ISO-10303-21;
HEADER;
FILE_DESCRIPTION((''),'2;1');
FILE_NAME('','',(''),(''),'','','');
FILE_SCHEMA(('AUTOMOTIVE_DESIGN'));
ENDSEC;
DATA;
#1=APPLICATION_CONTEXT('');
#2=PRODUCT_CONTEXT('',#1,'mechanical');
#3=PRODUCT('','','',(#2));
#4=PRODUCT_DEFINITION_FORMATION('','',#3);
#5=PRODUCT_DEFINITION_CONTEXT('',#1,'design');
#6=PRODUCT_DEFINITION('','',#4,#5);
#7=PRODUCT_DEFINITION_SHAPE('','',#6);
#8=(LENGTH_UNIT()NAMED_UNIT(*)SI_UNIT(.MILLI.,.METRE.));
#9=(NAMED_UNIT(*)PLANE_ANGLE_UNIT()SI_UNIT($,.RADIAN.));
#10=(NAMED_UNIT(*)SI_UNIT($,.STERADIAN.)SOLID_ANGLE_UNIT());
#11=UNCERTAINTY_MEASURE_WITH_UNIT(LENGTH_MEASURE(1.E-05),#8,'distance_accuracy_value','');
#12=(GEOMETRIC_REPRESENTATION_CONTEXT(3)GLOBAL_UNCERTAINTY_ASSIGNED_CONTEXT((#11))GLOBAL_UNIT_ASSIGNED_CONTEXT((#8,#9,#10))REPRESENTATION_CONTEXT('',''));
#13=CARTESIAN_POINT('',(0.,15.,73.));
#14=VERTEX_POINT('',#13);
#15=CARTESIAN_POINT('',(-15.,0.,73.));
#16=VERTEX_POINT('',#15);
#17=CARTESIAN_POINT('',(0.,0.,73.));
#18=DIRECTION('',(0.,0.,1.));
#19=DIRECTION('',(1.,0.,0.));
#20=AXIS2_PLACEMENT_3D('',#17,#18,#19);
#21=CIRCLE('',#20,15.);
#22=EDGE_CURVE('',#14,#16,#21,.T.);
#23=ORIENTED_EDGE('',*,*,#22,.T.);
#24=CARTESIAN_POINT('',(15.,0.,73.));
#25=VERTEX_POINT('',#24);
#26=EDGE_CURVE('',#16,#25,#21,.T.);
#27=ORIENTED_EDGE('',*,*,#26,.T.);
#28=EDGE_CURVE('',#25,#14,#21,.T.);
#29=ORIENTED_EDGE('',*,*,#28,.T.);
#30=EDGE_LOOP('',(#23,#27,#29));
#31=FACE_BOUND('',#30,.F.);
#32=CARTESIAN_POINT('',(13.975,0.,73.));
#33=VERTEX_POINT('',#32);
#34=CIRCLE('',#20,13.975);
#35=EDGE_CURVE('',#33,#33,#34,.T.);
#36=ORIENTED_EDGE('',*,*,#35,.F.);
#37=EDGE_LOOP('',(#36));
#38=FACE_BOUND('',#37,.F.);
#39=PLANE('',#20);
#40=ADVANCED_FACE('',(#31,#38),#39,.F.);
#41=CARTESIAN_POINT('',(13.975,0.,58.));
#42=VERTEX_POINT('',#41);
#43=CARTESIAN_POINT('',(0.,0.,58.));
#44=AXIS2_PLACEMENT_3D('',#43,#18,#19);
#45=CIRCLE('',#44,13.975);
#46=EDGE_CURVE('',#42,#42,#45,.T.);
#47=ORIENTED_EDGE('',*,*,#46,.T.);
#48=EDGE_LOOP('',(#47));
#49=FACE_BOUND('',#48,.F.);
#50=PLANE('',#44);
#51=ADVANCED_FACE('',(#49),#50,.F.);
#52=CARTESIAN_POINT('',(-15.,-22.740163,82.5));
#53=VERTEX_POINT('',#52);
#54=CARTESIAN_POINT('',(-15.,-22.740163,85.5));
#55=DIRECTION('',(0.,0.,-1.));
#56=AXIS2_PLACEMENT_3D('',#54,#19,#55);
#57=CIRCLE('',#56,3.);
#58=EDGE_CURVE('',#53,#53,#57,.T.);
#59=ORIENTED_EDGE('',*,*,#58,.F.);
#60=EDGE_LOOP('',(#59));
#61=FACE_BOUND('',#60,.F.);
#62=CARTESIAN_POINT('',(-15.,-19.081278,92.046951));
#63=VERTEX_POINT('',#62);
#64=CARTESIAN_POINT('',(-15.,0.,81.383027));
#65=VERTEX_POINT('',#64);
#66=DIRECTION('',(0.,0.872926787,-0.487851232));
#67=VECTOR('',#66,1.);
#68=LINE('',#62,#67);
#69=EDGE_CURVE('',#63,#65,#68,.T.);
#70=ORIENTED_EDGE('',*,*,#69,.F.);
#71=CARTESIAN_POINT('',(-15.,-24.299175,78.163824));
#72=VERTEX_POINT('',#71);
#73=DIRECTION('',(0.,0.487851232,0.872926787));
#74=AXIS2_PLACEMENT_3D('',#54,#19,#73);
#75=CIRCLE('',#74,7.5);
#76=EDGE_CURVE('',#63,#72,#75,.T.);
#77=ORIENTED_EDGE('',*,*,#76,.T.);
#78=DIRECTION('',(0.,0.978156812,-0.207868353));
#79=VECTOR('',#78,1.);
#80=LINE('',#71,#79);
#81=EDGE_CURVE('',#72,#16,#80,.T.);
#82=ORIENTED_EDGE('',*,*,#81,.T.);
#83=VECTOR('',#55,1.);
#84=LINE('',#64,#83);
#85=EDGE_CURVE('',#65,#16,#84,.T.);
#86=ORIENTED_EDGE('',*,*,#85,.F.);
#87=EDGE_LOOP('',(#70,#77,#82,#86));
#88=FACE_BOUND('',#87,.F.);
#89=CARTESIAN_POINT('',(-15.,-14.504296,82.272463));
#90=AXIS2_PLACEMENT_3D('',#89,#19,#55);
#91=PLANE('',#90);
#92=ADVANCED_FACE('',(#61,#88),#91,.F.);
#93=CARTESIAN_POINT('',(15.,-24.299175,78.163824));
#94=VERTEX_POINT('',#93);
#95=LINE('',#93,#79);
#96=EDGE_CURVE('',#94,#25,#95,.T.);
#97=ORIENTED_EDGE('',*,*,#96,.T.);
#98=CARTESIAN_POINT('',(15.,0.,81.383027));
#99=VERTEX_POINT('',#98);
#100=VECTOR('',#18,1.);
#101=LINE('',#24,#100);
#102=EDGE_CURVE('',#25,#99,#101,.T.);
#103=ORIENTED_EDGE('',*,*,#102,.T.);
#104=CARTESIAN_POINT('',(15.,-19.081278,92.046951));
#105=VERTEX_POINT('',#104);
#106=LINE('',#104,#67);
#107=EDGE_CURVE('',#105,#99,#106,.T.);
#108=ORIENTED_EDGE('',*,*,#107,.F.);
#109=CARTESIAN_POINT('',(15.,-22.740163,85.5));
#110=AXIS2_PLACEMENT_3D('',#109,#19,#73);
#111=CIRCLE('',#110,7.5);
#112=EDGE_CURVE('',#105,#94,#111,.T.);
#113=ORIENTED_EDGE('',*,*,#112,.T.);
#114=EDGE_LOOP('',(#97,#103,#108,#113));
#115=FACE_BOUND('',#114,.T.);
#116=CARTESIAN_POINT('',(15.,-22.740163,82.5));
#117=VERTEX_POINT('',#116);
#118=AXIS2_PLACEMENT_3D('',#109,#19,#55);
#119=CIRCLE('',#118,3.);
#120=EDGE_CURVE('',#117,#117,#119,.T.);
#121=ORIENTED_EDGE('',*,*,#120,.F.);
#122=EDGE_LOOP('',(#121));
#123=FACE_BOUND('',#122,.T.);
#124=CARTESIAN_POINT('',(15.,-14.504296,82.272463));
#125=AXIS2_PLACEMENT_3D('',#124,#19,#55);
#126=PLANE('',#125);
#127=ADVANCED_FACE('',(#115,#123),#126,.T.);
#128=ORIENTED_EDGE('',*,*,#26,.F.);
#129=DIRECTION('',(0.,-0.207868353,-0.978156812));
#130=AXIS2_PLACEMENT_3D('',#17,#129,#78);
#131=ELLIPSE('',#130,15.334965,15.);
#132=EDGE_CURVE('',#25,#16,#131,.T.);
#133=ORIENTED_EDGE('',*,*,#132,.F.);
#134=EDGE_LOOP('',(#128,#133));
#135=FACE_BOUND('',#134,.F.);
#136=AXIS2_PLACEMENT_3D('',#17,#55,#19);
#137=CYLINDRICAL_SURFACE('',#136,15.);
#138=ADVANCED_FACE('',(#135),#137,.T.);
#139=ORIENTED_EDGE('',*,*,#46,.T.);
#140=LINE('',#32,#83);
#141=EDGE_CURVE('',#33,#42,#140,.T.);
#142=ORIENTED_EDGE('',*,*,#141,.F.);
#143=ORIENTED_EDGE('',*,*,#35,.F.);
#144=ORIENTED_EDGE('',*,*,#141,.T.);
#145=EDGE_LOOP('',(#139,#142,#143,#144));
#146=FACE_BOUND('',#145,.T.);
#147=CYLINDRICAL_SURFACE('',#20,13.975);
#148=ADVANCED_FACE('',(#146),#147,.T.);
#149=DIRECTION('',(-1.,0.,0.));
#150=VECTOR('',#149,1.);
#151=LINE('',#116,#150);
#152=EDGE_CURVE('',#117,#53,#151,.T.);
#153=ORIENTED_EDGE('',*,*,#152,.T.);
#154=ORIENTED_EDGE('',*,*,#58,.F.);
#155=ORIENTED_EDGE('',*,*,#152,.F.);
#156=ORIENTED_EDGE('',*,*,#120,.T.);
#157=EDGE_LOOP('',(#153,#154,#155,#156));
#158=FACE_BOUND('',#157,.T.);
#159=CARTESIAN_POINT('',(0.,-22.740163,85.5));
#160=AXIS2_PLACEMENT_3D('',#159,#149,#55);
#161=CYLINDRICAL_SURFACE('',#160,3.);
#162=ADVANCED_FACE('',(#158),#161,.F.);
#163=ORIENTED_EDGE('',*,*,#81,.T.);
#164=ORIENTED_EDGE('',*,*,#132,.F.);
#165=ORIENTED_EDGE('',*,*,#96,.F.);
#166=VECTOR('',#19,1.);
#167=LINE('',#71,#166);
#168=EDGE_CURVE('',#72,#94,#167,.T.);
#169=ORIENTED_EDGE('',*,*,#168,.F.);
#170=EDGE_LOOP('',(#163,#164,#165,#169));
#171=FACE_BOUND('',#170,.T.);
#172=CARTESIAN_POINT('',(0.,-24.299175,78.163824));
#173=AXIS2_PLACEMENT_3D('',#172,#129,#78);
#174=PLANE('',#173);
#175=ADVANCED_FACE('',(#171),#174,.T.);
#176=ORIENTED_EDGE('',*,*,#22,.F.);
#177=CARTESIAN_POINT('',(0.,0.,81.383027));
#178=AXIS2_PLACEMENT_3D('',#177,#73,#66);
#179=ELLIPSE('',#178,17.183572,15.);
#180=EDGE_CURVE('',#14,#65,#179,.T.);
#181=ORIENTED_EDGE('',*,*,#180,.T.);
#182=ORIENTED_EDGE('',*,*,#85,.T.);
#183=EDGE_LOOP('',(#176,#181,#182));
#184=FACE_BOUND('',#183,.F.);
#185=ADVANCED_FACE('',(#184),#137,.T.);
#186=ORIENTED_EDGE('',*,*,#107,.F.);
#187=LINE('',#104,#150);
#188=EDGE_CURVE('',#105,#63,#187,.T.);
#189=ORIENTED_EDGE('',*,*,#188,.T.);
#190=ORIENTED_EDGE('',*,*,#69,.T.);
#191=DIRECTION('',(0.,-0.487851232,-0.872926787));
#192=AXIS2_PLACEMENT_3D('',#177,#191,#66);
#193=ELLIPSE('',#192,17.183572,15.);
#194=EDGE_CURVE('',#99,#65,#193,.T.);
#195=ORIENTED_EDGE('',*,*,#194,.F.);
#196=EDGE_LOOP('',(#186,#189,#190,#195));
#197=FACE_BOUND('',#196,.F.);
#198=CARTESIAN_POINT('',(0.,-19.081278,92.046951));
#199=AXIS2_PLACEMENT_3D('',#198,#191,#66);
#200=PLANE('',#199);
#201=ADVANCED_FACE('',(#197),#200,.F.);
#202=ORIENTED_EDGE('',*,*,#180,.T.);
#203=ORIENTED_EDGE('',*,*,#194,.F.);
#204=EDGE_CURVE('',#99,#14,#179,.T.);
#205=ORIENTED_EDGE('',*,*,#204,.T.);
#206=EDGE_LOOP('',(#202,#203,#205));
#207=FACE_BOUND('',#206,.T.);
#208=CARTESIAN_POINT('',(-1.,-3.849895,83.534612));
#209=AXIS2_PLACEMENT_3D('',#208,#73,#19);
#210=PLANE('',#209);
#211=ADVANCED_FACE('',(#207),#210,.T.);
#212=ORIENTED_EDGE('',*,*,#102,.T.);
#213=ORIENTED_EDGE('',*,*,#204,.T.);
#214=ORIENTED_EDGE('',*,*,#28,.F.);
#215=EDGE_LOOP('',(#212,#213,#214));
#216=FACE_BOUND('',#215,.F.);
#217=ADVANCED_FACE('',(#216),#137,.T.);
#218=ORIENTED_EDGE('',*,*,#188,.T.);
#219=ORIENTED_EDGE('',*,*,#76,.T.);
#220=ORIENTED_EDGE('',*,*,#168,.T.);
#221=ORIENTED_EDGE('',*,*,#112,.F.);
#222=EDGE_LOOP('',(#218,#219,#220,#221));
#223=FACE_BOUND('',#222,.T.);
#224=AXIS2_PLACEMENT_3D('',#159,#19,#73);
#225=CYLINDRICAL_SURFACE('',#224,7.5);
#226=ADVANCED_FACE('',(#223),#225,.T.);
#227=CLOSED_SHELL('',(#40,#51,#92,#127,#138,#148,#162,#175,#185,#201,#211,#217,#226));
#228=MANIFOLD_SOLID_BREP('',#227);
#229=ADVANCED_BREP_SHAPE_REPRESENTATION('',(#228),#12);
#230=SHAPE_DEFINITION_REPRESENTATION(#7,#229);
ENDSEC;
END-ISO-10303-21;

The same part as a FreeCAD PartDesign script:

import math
import FreeCAD as App
import Part
import Sketcher
Q = App.Units.Quantity

doc = App.newDocument("Part")
params = doc.addObject("Spreadsheet::Sheet", "Params")
for row, (alias, value) in enumerate([
    ("sketch1_diameter", "27.95 mm"),
    ("pad1_length", "15 mm"),
    ("sketch2_diameter", "30 mm"),
    ("pad2_length", "25 mm"),
    ("sketch3_diameter", "6 mm"),
    ("sketch3_radius", "7.5 mm"),
    ("pad3_length", "30 mm"),
    ("sketch4_width", "44 mm"),
    ("sketch4_height", "61 mm"),
    ("pocket1_length", "44 mm"),
], start=1):
    params.set(f"A{row}", alias)
    params.set(f"B{row}", "=" + value)
    params.setAlias(f"B{row}", alias)

body = doc.addObject("PartDesign::Body", "Body")

sketch1 = doc.addObject("Sketcher::SketchObject", "Sketch")
body.addObject(sketch1)
sketch1.AttachmentSupport = (doc.XY_Plane, [""])
sketch1.MapMode = "FlatFace"
sketch1.AttachmentOffset = App.Placement(App.Vector(0, 0, 73), App.Rotation())
sketch1.addGeometry(Part.Circle(App.Vector(0, 0, 0), App.Vector(0, 0, 1), 13.975), False)
sketch1.addConstraint(Sketcher.Constraint("Coincident", 0, 3, -1, 1))
sketch1.addConstraint(Sketcher.Constraint("Diameter", 0, Q("27.95 mm")))
sketch1.setExpression("Constraints[1]", "Params.sketch1_diameter")
pad1 = doc.addObject("PartDesign::Pad", "Pad")
body.addObject(pad1)
pad1.Profile = sketch1
pad1.setExpression("Length", "Params.pad1_length")
pad1.Reversed = True

sketch2 = doc.addObject("Sketcher::SketchObject", "Sketch001")
body.addObject(sketch2)
sketch2.AttachmentSupport = (doc.XY_Plane, [""])
sketch2.MapMode = "FlatFace"
sketch2.AttachmentOffset = App.Placement(App.Vector(0, 0, 73), App.Rotation())
sketch2.addGeometry(Part.Circle(App.Vector(0, 0, 0), App.Vector(0, 0, 1), 15), False)
sketch2.addConstraint(Sketcher.Constraint("Coincident", 0, 3, -1, 1))
sketch2.addConstraint(Sketcher.Constraint("Diameter", 0, Q("30 mm")))
sketch2.setExpression("Constraints[1]", "Params.sketch2_diameter")
pad2 = doc.addObject("PartDesign::Pad", "Pad001")
body.addObject(pad2)
pad2.Profile = sketch2
pad2.setExpression("Length", "Params.pad2_length")

sketch3 = doc.addObject("Sketcher::SketchObject", "Sketch002")
body.addObject(sketch3)
sketch3.AttachmentSupport = (doc.YZ_Plane, [""])
sketch3.MapMode = "FlatFace"
sketch3.addGeometry(Part.ArcOfCircle(Part.Circle(App.Vector(-22.740163, 85.5, 0), App.Vector(0, 0, 1), 7.5), math.radians(60.800553), math.radians(258.002539)), False)
sketch3.addGeometry(Part.LineSegment(App.Vector(-24.299175, 78.163824, 0), App.Vector(0, 73, 0)), False)
sketch3.addGeometry(Part.LineSegment(App.Vector(0, 73, 0), App.Vector(0, 81.383027, 0)), False)
sketch3.addGeometry(Part.LineSegment(App.Vector(0, 81.383027, 0), App.Vector(-19.081278, 92.046951, 0)), False)
sketch3.addGeometry(Part.Circle(App.Vector(-22.740163, 85.5, 0), App.Vector(0, 0, 1), 3), False)
sketch3.addConstraint(Sketcher.Constraint("Tangent", 0, 2, 1, 1))
sketch3.addConstraint(Sketcher.Constraint("Coincident", 1, 2, 2, 1))
sketch3.addConstraint(Sketcher.Constraint("Coincident", 2, 2, 3, 1))
sketch3.addConstraint(Sketcher.Constraint("Tangent", 3, 2, 0, 1))
sketch3.addConstraint(Sketcher.Constraint("Vertical", 2))
sketch3.addConstraint(Sketcher.Constraint("Coincident", 4, 3, 0, 3))
sketch3.addConstraint(Sketcher.Constraint("PointOnObject", 1, 2, -2))
sketch3.addConstraint(Sketcher.Constraint("Diameter", 4, Q("6 mm")))
sketch3.addConstraint(Sketcher.Constraint("Radius", 0, Q("7.5 mm")))
sketch3.addConstraint(Sketcher.Constraint("DistanceY", -1, 1, 1, 2, Q("73 mm")))
sketch3.addConstraint(Sketcher.Constraint("DistanceY", -1, 1, 0, 3, Q("85.5 mm")))
sketch3.addConstraint(Sketcher.Constraint("Distance", 1, Q("24.841799 mm")))
sketch3.addConstraint(Sketcher.Constraint("DistanceY", 2, 1, 2, 2, Q("8.383027 mm")))
sketch3.setExpression("Constraints[7]", "Params.sketch3_diameter")
sketch3.setExpression("Constraints[8]", "Params.sketch3_radius")
pad3 = doc.addObject("PartDesign::Pad", "Pad002")
body.addObject(pad3)
pad3.Profile = sketch3
pad3.setExpression("Length", "Params.pad3_length")
pad3.Midplane = True

sketch4 = doc.addObject("Sketcher::SketchObject", "Sketch003")
body.addObject(sketch4)
sketch4.Placement = App.Placement(App.Vector(-23, -30.474162, 98.414074), App.Rotation(App.Vector(1, 0, 0), App.Vector(0, 0.872926787, -0.487851232), App.Vector(0, 0.487851232, 0.872926787), "ZXY"))
sketch4.addGeometry(Part.LineSegment(App.Vector(0, 61, 0), App.Vector(0, 0, 0)), False)
sketch4.addGeometry(Part.LineSegment(App.Vector(0, 0, 0), App.Vector(44, 0, 0)), False)
sketch4.addGeometry(Part.LineSegment(App.Vector(44, 0, 0), App.Vector(44, 61, 0)), False)
sketch4.addGeometry(Part.LineSegment(App.Vector(44, 61, 0), App.Vector(0, 61, 0)), False)
sketch4.addConstraint(Sketcher.Constraint("Coincident", 0, 2, 1, 1))
sketch4.addConstraint(Sketcher.Constraint("Coincident", 1, 2, 2, 1))
sketch4.addConstraint(Sketcher.Constraint("Coincident", 2, 2, 3, 1))
sketch4.addConstraint(Sketcher.Constraint("Coincident", 3, 2, 0, 1))
sketch4.addConstraint(Sketcher.Constraint("Vertical", 0))
sketch4.addConstraint(Sketcher.Constraint("Horizontal", 1))
sketch4.addConstraint(Sketcher.Constraint("Vertical", 2))
sketch4.addConstraint(Sketcher.Constraint("Horizontal", 3))
sketch4.addConstraint(Sketcher.Constraint("Coincident", 0, 2, -1, 1))
sketch4.addConstraint(Sketcher.Constraint("DistanceX", 1, 1, 1, 2, Q("44 mm")))
sketch4.addConstraint(Sketcher.Constraint("DistanceY", 0, 2, 0, 1, Q("61 mm")))
sketch4.setExpression("Constraints[9]", "Params.sketch4_width")
sketch4.setExpression("Constraints[10]", "Params.sketch4_height")
pocket1 = doc.addObject("PartDesign::Pocket", "Pocket")
body.addObject(pocket1)
pocket1.Profile = sketch4
pocket1.setExpression("Length", "Params.pocket1_length")
pocket1.Reversed = True

doc.recompute()
